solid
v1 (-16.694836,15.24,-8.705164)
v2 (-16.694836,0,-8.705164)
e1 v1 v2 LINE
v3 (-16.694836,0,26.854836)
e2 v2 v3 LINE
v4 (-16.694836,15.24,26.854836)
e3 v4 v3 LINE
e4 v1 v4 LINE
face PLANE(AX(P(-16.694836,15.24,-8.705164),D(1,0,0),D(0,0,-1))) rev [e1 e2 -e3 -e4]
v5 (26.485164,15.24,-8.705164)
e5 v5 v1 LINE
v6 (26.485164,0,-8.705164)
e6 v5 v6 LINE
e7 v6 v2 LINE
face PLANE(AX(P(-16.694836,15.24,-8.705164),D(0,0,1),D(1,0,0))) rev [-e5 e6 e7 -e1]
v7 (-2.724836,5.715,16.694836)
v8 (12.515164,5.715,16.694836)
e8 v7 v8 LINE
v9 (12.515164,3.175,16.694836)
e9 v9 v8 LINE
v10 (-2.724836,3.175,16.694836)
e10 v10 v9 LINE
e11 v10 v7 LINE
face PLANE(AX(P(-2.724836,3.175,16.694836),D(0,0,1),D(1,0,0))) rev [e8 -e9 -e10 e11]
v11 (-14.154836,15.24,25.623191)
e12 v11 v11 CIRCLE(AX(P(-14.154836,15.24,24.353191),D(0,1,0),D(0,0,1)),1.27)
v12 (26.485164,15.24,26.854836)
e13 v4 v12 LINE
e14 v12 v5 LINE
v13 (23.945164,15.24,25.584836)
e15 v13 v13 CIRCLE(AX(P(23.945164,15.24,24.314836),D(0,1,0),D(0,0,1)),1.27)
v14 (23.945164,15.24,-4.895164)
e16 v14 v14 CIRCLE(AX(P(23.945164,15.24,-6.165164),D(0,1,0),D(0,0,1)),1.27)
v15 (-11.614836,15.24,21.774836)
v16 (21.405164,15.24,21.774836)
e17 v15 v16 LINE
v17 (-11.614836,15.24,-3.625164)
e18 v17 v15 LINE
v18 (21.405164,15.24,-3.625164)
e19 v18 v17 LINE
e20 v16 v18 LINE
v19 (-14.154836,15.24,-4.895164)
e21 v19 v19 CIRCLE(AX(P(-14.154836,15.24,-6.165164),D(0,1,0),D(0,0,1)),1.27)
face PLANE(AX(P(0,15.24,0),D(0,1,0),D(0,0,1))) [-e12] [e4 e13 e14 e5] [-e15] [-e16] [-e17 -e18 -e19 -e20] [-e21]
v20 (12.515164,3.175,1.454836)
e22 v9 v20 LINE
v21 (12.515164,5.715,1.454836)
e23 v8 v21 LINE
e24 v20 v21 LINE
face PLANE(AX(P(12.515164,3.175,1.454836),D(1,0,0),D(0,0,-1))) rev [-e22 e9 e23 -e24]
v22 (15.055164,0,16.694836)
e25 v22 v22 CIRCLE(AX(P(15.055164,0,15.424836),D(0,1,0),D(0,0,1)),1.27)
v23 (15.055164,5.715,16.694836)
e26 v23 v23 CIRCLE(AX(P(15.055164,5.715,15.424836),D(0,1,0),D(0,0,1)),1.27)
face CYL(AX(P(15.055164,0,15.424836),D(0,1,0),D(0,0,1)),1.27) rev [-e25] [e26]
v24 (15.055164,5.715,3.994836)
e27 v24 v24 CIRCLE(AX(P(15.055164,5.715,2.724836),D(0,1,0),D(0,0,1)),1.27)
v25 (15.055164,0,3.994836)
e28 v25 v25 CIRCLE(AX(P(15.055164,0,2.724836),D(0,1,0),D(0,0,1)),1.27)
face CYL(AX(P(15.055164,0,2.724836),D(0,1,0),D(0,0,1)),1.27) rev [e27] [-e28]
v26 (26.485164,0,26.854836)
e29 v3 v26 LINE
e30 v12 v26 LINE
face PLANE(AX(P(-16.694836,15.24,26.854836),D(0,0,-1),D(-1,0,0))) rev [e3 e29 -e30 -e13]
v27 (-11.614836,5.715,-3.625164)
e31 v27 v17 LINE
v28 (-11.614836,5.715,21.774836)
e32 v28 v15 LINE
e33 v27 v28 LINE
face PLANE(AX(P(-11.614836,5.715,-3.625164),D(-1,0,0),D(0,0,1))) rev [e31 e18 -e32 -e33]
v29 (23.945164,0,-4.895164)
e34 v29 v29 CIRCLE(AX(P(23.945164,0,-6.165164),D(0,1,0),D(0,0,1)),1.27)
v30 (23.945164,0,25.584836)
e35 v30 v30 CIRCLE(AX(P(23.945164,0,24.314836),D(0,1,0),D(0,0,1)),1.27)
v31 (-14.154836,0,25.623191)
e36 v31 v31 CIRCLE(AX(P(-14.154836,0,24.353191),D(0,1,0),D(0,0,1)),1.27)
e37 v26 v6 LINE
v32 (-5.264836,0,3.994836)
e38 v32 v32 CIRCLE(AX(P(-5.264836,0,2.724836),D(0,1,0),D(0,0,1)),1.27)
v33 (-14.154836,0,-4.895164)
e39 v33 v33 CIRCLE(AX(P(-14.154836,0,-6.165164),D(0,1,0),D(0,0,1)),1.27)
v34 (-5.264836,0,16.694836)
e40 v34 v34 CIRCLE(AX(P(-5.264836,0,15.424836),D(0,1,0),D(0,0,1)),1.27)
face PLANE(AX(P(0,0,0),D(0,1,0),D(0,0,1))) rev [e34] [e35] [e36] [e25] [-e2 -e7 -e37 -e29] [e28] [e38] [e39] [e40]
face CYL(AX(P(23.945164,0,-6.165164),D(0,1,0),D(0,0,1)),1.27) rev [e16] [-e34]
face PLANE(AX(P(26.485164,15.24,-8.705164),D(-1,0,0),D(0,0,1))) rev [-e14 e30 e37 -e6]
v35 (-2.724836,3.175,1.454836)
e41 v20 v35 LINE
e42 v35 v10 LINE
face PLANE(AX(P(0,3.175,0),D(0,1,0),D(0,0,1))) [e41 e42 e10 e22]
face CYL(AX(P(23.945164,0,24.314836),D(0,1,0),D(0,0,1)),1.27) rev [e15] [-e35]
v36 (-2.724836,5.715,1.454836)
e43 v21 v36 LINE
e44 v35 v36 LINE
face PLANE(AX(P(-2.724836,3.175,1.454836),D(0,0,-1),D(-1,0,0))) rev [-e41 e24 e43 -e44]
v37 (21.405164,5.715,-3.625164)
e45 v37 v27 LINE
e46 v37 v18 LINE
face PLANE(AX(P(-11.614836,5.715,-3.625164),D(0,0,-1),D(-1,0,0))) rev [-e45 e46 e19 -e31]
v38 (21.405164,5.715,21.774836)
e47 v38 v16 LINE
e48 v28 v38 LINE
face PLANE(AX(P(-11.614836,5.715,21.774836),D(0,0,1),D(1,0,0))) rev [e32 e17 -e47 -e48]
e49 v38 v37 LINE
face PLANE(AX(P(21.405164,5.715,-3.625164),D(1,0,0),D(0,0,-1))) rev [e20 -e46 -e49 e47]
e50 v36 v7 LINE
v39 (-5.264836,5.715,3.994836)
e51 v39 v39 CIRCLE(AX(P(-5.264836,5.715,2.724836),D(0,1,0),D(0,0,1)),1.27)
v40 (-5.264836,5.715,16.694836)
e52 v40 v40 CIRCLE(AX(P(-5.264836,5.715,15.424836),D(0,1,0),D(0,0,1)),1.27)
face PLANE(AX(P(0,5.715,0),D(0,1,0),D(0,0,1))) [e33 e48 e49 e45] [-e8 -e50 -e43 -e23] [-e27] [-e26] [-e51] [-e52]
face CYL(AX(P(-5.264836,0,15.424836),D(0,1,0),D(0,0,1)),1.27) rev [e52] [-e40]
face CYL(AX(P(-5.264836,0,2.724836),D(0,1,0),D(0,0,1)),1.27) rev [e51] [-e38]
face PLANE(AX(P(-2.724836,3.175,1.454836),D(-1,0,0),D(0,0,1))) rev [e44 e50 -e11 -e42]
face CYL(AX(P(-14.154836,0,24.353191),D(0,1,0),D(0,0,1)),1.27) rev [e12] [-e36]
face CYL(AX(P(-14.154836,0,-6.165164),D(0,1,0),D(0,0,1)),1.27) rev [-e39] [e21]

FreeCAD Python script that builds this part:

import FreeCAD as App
import Part
import Sketcher
Q = App.Units.Quantity


def add_polygon(sketch, points):
    """Adds a closed chain of lines whose ends are joined by coincident constraints."""
    first, n = sketch.GeometryCount, len(points)
    for a, b in zip(points, points[1:] + points[:1]):
        sketch.addGeometry(Part.LineSegment(App.Vector(*a, 0), App.Vector(*b, 0)), False)
    for i in range(n):
        sketch.addConstraint(Sketcher.Constraint("Coincident", first + i, 2, first + (i + 1) % n, 1))

doc = App.newDocument("Part")
body = doc.addObject("PartDesign::Body", "Body")

sketch1 = body.newObject("Sketcher::SketchObject", "Sketch")
sketch1.AttachmentSupport = (doc.getObject("XZ_Plane"), [""])
sketch1.MapMode = "FlatFace"
add_polygon(sketch1, [(-17, -9), (-17, 27), (26, 27), (26, -9)])
sketch1.addConstraint(Sketcher.Constraint("Vertical", 0))
sketch1.addConstraint(Sketcher.Constraint("Horizontal", 1))
sketch1.addConstraint(Sketcher.Constraint("Vertical", 2))
sketch1.addConstraint(Sketcher.Constraint("Horizontal", 3))
sketch1.addConstraint(Sketcher.Constraint("DistanceX", 1, 1, 1, 2, Q("1.7 in")))
sketch1.addConstraint(Sketcher.Constraint("DistanceY", 0, 1, 0, 2, Q("1.4 in")))
sketch1.addConstraint(Sketcher.Constraint("DistanceX", 0, 2, -1, 1, 16.694836))
sketch1.addConstraint(Sketcher.Constraint("DistanceY", -1, 1, 0, 2, 26.854836))
pad1 = body.newObject("PartDesign::Pad", "Pad")
pad1.Profile = sketch1
pad1.Length = Q("0.6 in")
pad1.Reversed = True

sketch2 = body.newObject("Sketcher::SketchObject", "Sketch001")
sketch2.AttachmentSupport = (doc.getObject("XZ_Plane"), [""])
sketch2.MapMode = "FlatFace"
sketch2.AttachmentOffset = App.Placement(App.Vector(0, 0, -0.6 * 25.4), App.Rotation())
add_polygon(sketch2, [(-12, -4), (-12, 22), (21, 22), (21, -4)])
sketch2.addConstraint(Sketcher.Constraint("Vertical", 0))
sketch2.addConstraint(Sketcher.Constraint("Horizontal", 1))
sketch2.addConstraint(Sketcher.Constraint("Vertical", 2))
sketch2.addConstraint(Sketcher.Constraint("Horizontal", 3))
sketch2.addConstraint(Sketcher.Constraint("DistanceY", 0, 1, 0, 2, Q("1 in")))
sketch2.addConstraint(Sketcher.Constraint("DistanceX", 1, 1, 1, 2, Q("1.3 in")))
sketch2.addConstraint(Sketcher.Constraint("DistanceX", 0, 2, -1, 1, 11.614836))
sketch2.addConstraint(Sketcher.Constraint("DistanceY", -1, 1, 0, 2, 21.774836))
pocket1 = body.newObject("PartDesign::Pocket", "Pocket")
pocket1.Profile = sketch2
pocket1.Length = Q("0.375 in")
pocket1.Reversed = True

sketch3 = body.newObject("Sketcher::SketchObject", "Sketch002")
sketch3.AttachmentSupport = (doc.getObject("XZ_Plane"), [""])
sketch3.MapMode = "FlatFace"
sketch3.AttachmentOffset = App.Placement(App.Vector(0, 0, -0.225 * 25.4), App.Rotation())
add_polygon(sketch3, [(-3, 1), (-3, 17), (13, 17), (13, 1)])
sketch3.addConstraint(Sketcher.Constraint("Vertical", 0))
sketch3.addConstraint(Sketcher.Constraint("Horizontal", 1))
sketch3.addConstraint(Sketcher.Constraint("Vertical", 2))
sketch3.addConstraint(Sketcher.Constraint("Horizontal", 3))
sketch3.addConstraint(Sketcher.Constraint("Equal", 3, 0))
sketch3.addConstraint(Sketcher.Constraint("DistanceX", 1, 1, 1, 2, Q("0.6 in")))
sketch3.addConstraint(Sketcher.Constraint("DistanceX", 0, 2, -1, 1, 2.724836))
sketch3.addConstraint(Sketcher.Constraint("DistanceY", -1, 1, 0, 2, 16.694836))
pocket2 = body.newObject("PartDesign::Pocket", "Pocket001")
pocket2.Profile = sketch3
pocket2.Length = Q("0.1 in")
pocket2.Reversed = True

sketch4 = body.newObject("Sketcher::SketchObject", "Sketch003")
sketch4.AttachmentSupport = (doc.getObject("XZ_Plane"), [""])
sketch4.MapMode = "FlatFace"
sketch4.AttachmentOffset = App.Placement(App.Vector(0, 0, -0.225 * 25.4), App.Rotation())
sketch4.addGeometry(Part.Circle(App.Vector(-5.3, 2.7, 0), App.Vector(0, 0, 1), 1.3), False)
sketch4.addGeometry(Part.Circle(App.Vector(-5.3, 15.4, 0), App.Vector(0, 0, 1), 1.3), False)
sketch4.addGeometry(Part.Circle(App.Vector(15.1, 2.7, 0), App.Vector(0, 0, 1), 1.3), False)
sketch4.addGeometry(Part.Circle(App.Vector(15.1, 15.4, 0), App.Vector(0, 0, 1), 1.3), False)
sketch4.addConstraint(Sketcher.Constraint("Equal", 0, 1))
sketch4.addConstraint(Sketcher.Constraint("Equal", 1, 2))
sketch4.addConstraint(Sketcher.Constraint("Equal", 2, 3))
sketch4.addConstraint(Sketcher.Constraint("Horizontal", 0, 3, 2, 3))
sketch4.addConstraint(Sketcher.Constraint("Horizontal", 1, 3, 3, 3))
sketch4.addConstraint(Sketcher.Constraint("Vertical", 0, 3, 1, 3))
sketch4.addConstraint(Sketcher.Constraint("Vertical", 2, 3, 3, 3))
sketch4.addConstraint(Sketcher.Constraint("Diameter", 0, Q("0.1 in")))
sketch4.addConstraint(Sketcher.Constraint("DistanceY", 0, 3, 1, 3, Q("0.5 in")))
sketch4.addConstraint(Sketcher.Constraint("DistanceX", 0, 3, 2, 3, Q("0.8 in")))
sketch4.addConstraint(Sketcher.Constraint("DistanceX", 0, 3, -1, 1, 5.264836))
sketch4.addConstraint(Sketcher.Constraint("DistanceY", -1, 1, 0, 3, 2.724836))
pocket3 = body.newObject("PartDesign::Pocket", "Pocket002")
pocket3.Profile = sketch4
pocket3.Type = "ThroughAll"
pocket3.Reversed = True

sketch5 = body.newObject("Sketcher::SketchObject", "Sketch004")
sketch5.AttachmentSupport = (doc.getObject("XZ_Plane"), [""])
sketch5.MapMode = "FlatFace"
sketch5.AttachmentOffset = App.Placement(App.Vector(0, 0, -0.6 * 25.4), App.Rotation())
sketch5.addGeometry(Part.Circle(App.Vector(-14.2, -6.2, 0), App.Vector(0, 0, 1), 1.3), False)
sketch5.addGeometry(Part.Circle(App.Vector(-14.2, 24.4, 0), App.Vector(0, 0, 1), 1.3), False)
sketch5.addGeometry(Part.Circle(App.Vector(23.9, -6.2, 0), App.Vector(0, 0, 1), 1.3), False)
sketch5.addGeometry(Part.Circle(App.Vector(23.9, 24.3, 0), App.Vector(0, 0, 1), 1.3), False)
sketch5.addConstraint(Sketcher.Constraint("Equal", 0, 1))
sketch5.addConstraint(Sketcher.Constraint("Equal", 1, 2))
sketch5.addConstraint(Sketcher.Constraint("Equal", 2, 3))
sketch5.addConstraint(Sketcher.Constraint("Horizontal", 0, 3, 2, 3))
sketch5.addConstraint(Sketcher.Constraint("Vertical", 0, 3, 1, 3))
sketch5.addConstraint(Sketcher.Constraint("Vertical", 2, 3, 3, 3))
sketch5.addConstraint(Sketcher.Constraint("Diameter", 0, Q("0.1 in")))
sketch5.addConstraint(Sketcher.Constraint("DistanceX", 0, 3, 2, 3, Q("1.5 in")))
sketch5.addConstraint(Sketcher.Constraint("DistanceY", 2, 3, 3, 3, Q("1.2 in")))
sketch5.addConstraint(Sketcher.Constraint("DistanceY", -1, 1, 1, 3, 24.353191))
sketch5.addConstraint(Sketcher.Constraint("DistanceX", 0, 3, -1, 1, 14.154836))
sketch5.addConstraint(Sketcher.Constraint("DistanceY", 0, 3, -1, 1, 6.165164))
pocket4 = body.newObject("PartDesign::Pocket", "Pocket003")
pocket4.Profile = sketch5
pocket4.Type = "ThroughAll"
pocket4.Reversed = True

doc.recompute()
